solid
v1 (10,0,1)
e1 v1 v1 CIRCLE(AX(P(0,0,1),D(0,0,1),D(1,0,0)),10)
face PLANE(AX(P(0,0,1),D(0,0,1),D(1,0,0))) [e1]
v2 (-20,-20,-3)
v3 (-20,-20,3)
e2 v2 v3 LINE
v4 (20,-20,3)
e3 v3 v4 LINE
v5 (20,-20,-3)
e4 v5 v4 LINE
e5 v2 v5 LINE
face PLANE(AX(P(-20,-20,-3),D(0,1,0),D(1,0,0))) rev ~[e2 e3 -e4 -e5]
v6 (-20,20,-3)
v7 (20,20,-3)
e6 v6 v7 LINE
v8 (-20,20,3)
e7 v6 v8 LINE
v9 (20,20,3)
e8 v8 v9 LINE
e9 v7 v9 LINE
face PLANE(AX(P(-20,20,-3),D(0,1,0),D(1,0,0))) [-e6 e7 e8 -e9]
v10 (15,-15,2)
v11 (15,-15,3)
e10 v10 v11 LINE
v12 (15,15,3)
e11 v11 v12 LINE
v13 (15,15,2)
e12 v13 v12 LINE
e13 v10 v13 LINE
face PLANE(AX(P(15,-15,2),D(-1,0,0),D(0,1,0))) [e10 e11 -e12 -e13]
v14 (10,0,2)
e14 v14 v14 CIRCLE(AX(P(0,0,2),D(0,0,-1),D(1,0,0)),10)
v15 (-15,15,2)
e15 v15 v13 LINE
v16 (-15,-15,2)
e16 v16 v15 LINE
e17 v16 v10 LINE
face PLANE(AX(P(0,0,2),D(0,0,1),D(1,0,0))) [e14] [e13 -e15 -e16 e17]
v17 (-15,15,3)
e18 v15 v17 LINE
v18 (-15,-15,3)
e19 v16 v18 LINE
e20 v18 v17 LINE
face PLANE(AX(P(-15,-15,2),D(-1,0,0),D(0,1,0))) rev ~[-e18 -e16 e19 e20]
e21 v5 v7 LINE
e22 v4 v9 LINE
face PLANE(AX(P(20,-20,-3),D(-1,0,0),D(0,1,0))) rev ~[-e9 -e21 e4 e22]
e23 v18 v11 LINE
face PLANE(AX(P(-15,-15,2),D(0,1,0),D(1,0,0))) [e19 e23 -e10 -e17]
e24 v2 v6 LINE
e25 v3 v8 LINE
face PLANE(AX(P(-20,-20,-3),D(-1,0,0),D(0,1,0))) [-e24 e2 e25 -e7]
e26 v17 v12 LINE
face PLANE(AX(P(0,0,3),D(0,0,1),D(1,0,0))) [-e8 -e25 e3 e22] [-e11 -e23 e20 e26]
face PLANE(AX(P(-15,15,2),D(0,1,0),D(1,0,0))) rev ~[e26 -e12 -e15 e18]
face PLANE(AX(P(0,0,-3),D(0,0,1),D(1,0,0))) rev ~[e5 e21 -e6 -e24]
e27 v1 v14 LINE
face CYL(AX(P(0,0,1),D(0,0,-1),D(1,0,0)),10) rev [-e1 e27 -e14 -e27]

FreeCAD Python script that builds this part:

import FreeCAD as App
import Part
import Sketcher
from FreeCAD import Vector
Q = App.Units.Quantity


def add_polygon(sketch, points):
    """Adds a closed chain of lines whose ends are joined by coincident constraints."""
    first, n = sketch.GeometryCount, len(points)
    for a, b in zip(points, points[1:] + points[:1]):
        sketch.addGeometry(Part.LineSegment(App.Vector(*a, 0), App.Vector(*b, 0)), False)
    for i in range(n):
        sketch.addConstraint(Sketcher.Constraint("Coincident", first + i, 2, first + (i + 1) % n, 1))

doc = App.newDocument("Part")
body = doc.addObject("PartDesign::Body", "Body")

# Sketch on XY plane
sketch1 = body.newObject("Sketcher::SketchObject", "Sketch")
sketch1.AttachmentSupport = (doc.getObject("XY_Plane"), [""])
sketch1.MapMode = "FlatFace"
sketch1.AttachmentOffset = App.Placement(Vector(0, 0, 2), App.Rotation())
add_polygon(sketch1, [(-15, 15), (-15, -15), (15, -15), (15, 15)])  # lines 0-3
sketch1.addConstraint([
    Sketcher.Constraint("Vertical", 0),
    Sketcher.Constraint("Horizontal", 1),
    Sketcher.Constraint("Vertical", 2),
    Sketcher.Constraint("Horizontal", 3),
    Sketcher.Constraint("Symmetric", 0, 2, 2, 2, -1, 1),
    Sketcher.Constraint("Equal", 3, 0),
    Sketcher.Constraint("DistanceX", 1, 1, 1, 2, Q("30 mm")),
])
pad1 = body.newObject("PartDesign::Pad", "Pad")
pad1.Profile = sketch1
pad1.Length = 1
body2 = doc.addObject("PartDesign::Body", "Body001")

# Sketch on XY plane
sketch2 = body2.newObject("Sketcher::SketchObject", "Sketch001")
sketch2.AttachmentSupport = (doc.getObject("XY_Plane001"), [""])
sketch2.MapMode = "FlatFace"
sketch2.AttachmentOffset = App.Placement(Vector(0, 0, 1), App.Rotation())
sketch2.addGeometry(Part.Circle(Vector(0, 0, 0), Vector(0, 0, 1), 10), False)
sketch2.addConstraint([
    Sketcher.Constraint("Coincident", 0, 3, -1, 1),
    Sketcher.Constraint("Diameter", 0, Q("20 mm")),
])
pad2 = body2.newObject("PartDesign::Pad", "Pad001")
pad2.Profile = sketch2
pad2.Length = 2
doc.recompute()

boolean = body2.newObject("PartDesign::Boolean", "Boolean")
boolean.Type = "Fuse"
boolean.addObjects([body])
body3 = doc.addObject("PartDesign::Body", "Body002")

# Sketch on XY plane
sketch3 = body3.newObject("Sketcher::SketchObject", "Sketch002")
sketch3.AttachmentSupport = (doc.getObject("XY_Plane002"), [""])
sketch3.MapMode = "FlatFace"
sketch3.AttachmentOffset = App.Placement(Vector(0, 0, -3), App.Rotation())
add_polygon(sketch3, [(-20, 20), (-20, -20), (20, -20), (20, 20)])  # lines 0-3
sketch3.addConstraint([
    Sketcher.Constraint("Vertical", 0),
    Sketcher.Constraint("Horizontal", 1),
    Sketcher.Constraint("Vertical", 2),
    Sketcher.Constraint("Horizontal", 3),
    Sketcher.Constraint("Symmetric", 0, 2, 2, 2, -1, 1),
    Sketcher.Constraint("Equal", 3, 0),
    Sketcher.Constraint("DistanceX", 1, 1, 1, 2, Q("40 mm")),
])
pad3 = body3.newObject("PartDesign::Pad", "Pad002")
pad3.Profile = sketch3
pad3.Length = 6
doc.recompute()

boolean2 = body3.newObject("PartDesign::Boolean", "Boolean001")
boolean2.Type = "Cut"
boolean2.addObjects([body2])

doc.recompute()
